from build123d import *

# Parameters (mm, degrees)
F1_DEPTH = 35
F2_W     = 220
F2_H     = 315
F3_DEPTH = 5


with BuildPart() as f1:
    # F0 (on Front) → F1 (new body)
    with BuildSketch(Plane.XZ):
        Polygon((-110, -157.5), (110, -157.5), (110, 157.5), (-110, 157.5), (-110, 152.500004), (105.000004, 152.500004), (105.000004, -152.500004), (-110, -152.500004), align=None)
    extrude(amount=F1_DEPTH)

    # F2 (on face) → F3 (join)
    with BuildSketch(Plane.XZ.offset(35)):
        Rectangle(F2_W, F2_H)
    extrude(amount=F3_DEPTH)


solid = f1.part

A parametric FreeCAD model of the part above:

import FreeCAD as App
import Part
import Sketcher
from FreeCAD import Vector


def add_polygon(sketch, points):
    """Adds a closed chain of lines whose ends are joined by coincident constraints."""
    first, n = sketch.GeometryCount, len(points)
    for a, b in zip(points, points[1:] + points[:1]):
        sketch.addGeometry(Part.LineSegment(App.Vector(*a, 0), App.Vector(*b, 0)), False)
    for i in range(n):
        sketch.addConstraint(Sketcher.Constraint("Coincident", first + i, 2, first + (i + 1) % n, 1))

doc = App.newDocument("Part")
body = doc.addObject("PartDesign::Body", "Body")

sketch1 = doc.addObject("Sketcher::SketchObject", "Sketch")
body.addObject(sketch1)
sketch1.AttachmentSupport = (doc.XZ_Plane, [""])
sketch1.MapMode = "FlatFace"
add_polygon(sketch1, [(-110, -157.5), (110, -157.5), (110, 157.5), (-110, 157.5), (-110, 152.500004), (105.000004, 152.500004), (105.000004, -152.500004), (-110, -152.500004)])
sketch1.addConstraint([
    Sketcher.Constraint("Horizontal", 0),
    Sketcher.Constraint("Vertical", 1),
    Sketcher.Constraint("Horizontal", 2),
    Sketcher.Constraint("Vertical", 3),
    Sketcher.Constraint("Horizontal", 4),
    Sketcher.Constraint("Vertical", 5),
    Sketcher.Constraint("Horizontal", 6),
    Sketcher.Constraint("Vertical", 7),
    Sketcher.Constraint("Symmetric", 0, 2, 2, 2, -1, 1),
    Sketcher.Constraint("Symmetric", 3, 2, 6, 2, -1),
    Sketcher.Constraint("DistanceX", 0, 1, 0, 2, 220.0),
    Sketcher.Constraint("DistanceY", 1, 1, 1, 2, 315.0),
    Sketcher.Constraint("DistanceY", 5, 2, 5, 1, 305.000008),
    Sketcher.Constraint("DistanceX", 4, 1, 4, 2, 215.000004),
])
pad1 = doc.addObject("PartDesign::Pad", "Pad")
body.addObject(pad1)
pad1.Profile = sketch1
pad1.Length = 35

sketch2 = doc.addObject("Sketcher::SketchObject", "Sketch001")
body.addObject(sketch2)
sketch2.AttachmentSupport = (doc.XZ_Plane, [""])
sketch2.MapMode = "FlatFace"
sketch2.AttachmentOffset = App.Placement(Vector(0, 0, 35), App.Rotation())
add_polygon(sketch2, [(-110, 157.5), (-110, -157.5), (110, -157.5), (110, 157.5)])
sketch2.addConstraint([
    Sketcher.Constraint("Vertical", 0),
    Sketcher.Constraint("Horizontal", 1),
    Sketcher.Constraint("Vertical", 2),
    Sketcher.Constraint("Horizontal", 3),
    Sketcher.Constraint("Symmetric", 0, 2, 2, 2, -1, 1),
    Sketcher.Constraint("DistanceX", 1, 1, 1, 2, 220.0),
    Sketcher.Constraint("DistanceY", 0, 2, 0, 1, 315.0),
])
pad2 = doc.addObject("PartDesign::Pad", "Pad001")
body.addObject(pad2)
pad2.Profile = sketch2
pad2.Length = 5

doc.recompute()
